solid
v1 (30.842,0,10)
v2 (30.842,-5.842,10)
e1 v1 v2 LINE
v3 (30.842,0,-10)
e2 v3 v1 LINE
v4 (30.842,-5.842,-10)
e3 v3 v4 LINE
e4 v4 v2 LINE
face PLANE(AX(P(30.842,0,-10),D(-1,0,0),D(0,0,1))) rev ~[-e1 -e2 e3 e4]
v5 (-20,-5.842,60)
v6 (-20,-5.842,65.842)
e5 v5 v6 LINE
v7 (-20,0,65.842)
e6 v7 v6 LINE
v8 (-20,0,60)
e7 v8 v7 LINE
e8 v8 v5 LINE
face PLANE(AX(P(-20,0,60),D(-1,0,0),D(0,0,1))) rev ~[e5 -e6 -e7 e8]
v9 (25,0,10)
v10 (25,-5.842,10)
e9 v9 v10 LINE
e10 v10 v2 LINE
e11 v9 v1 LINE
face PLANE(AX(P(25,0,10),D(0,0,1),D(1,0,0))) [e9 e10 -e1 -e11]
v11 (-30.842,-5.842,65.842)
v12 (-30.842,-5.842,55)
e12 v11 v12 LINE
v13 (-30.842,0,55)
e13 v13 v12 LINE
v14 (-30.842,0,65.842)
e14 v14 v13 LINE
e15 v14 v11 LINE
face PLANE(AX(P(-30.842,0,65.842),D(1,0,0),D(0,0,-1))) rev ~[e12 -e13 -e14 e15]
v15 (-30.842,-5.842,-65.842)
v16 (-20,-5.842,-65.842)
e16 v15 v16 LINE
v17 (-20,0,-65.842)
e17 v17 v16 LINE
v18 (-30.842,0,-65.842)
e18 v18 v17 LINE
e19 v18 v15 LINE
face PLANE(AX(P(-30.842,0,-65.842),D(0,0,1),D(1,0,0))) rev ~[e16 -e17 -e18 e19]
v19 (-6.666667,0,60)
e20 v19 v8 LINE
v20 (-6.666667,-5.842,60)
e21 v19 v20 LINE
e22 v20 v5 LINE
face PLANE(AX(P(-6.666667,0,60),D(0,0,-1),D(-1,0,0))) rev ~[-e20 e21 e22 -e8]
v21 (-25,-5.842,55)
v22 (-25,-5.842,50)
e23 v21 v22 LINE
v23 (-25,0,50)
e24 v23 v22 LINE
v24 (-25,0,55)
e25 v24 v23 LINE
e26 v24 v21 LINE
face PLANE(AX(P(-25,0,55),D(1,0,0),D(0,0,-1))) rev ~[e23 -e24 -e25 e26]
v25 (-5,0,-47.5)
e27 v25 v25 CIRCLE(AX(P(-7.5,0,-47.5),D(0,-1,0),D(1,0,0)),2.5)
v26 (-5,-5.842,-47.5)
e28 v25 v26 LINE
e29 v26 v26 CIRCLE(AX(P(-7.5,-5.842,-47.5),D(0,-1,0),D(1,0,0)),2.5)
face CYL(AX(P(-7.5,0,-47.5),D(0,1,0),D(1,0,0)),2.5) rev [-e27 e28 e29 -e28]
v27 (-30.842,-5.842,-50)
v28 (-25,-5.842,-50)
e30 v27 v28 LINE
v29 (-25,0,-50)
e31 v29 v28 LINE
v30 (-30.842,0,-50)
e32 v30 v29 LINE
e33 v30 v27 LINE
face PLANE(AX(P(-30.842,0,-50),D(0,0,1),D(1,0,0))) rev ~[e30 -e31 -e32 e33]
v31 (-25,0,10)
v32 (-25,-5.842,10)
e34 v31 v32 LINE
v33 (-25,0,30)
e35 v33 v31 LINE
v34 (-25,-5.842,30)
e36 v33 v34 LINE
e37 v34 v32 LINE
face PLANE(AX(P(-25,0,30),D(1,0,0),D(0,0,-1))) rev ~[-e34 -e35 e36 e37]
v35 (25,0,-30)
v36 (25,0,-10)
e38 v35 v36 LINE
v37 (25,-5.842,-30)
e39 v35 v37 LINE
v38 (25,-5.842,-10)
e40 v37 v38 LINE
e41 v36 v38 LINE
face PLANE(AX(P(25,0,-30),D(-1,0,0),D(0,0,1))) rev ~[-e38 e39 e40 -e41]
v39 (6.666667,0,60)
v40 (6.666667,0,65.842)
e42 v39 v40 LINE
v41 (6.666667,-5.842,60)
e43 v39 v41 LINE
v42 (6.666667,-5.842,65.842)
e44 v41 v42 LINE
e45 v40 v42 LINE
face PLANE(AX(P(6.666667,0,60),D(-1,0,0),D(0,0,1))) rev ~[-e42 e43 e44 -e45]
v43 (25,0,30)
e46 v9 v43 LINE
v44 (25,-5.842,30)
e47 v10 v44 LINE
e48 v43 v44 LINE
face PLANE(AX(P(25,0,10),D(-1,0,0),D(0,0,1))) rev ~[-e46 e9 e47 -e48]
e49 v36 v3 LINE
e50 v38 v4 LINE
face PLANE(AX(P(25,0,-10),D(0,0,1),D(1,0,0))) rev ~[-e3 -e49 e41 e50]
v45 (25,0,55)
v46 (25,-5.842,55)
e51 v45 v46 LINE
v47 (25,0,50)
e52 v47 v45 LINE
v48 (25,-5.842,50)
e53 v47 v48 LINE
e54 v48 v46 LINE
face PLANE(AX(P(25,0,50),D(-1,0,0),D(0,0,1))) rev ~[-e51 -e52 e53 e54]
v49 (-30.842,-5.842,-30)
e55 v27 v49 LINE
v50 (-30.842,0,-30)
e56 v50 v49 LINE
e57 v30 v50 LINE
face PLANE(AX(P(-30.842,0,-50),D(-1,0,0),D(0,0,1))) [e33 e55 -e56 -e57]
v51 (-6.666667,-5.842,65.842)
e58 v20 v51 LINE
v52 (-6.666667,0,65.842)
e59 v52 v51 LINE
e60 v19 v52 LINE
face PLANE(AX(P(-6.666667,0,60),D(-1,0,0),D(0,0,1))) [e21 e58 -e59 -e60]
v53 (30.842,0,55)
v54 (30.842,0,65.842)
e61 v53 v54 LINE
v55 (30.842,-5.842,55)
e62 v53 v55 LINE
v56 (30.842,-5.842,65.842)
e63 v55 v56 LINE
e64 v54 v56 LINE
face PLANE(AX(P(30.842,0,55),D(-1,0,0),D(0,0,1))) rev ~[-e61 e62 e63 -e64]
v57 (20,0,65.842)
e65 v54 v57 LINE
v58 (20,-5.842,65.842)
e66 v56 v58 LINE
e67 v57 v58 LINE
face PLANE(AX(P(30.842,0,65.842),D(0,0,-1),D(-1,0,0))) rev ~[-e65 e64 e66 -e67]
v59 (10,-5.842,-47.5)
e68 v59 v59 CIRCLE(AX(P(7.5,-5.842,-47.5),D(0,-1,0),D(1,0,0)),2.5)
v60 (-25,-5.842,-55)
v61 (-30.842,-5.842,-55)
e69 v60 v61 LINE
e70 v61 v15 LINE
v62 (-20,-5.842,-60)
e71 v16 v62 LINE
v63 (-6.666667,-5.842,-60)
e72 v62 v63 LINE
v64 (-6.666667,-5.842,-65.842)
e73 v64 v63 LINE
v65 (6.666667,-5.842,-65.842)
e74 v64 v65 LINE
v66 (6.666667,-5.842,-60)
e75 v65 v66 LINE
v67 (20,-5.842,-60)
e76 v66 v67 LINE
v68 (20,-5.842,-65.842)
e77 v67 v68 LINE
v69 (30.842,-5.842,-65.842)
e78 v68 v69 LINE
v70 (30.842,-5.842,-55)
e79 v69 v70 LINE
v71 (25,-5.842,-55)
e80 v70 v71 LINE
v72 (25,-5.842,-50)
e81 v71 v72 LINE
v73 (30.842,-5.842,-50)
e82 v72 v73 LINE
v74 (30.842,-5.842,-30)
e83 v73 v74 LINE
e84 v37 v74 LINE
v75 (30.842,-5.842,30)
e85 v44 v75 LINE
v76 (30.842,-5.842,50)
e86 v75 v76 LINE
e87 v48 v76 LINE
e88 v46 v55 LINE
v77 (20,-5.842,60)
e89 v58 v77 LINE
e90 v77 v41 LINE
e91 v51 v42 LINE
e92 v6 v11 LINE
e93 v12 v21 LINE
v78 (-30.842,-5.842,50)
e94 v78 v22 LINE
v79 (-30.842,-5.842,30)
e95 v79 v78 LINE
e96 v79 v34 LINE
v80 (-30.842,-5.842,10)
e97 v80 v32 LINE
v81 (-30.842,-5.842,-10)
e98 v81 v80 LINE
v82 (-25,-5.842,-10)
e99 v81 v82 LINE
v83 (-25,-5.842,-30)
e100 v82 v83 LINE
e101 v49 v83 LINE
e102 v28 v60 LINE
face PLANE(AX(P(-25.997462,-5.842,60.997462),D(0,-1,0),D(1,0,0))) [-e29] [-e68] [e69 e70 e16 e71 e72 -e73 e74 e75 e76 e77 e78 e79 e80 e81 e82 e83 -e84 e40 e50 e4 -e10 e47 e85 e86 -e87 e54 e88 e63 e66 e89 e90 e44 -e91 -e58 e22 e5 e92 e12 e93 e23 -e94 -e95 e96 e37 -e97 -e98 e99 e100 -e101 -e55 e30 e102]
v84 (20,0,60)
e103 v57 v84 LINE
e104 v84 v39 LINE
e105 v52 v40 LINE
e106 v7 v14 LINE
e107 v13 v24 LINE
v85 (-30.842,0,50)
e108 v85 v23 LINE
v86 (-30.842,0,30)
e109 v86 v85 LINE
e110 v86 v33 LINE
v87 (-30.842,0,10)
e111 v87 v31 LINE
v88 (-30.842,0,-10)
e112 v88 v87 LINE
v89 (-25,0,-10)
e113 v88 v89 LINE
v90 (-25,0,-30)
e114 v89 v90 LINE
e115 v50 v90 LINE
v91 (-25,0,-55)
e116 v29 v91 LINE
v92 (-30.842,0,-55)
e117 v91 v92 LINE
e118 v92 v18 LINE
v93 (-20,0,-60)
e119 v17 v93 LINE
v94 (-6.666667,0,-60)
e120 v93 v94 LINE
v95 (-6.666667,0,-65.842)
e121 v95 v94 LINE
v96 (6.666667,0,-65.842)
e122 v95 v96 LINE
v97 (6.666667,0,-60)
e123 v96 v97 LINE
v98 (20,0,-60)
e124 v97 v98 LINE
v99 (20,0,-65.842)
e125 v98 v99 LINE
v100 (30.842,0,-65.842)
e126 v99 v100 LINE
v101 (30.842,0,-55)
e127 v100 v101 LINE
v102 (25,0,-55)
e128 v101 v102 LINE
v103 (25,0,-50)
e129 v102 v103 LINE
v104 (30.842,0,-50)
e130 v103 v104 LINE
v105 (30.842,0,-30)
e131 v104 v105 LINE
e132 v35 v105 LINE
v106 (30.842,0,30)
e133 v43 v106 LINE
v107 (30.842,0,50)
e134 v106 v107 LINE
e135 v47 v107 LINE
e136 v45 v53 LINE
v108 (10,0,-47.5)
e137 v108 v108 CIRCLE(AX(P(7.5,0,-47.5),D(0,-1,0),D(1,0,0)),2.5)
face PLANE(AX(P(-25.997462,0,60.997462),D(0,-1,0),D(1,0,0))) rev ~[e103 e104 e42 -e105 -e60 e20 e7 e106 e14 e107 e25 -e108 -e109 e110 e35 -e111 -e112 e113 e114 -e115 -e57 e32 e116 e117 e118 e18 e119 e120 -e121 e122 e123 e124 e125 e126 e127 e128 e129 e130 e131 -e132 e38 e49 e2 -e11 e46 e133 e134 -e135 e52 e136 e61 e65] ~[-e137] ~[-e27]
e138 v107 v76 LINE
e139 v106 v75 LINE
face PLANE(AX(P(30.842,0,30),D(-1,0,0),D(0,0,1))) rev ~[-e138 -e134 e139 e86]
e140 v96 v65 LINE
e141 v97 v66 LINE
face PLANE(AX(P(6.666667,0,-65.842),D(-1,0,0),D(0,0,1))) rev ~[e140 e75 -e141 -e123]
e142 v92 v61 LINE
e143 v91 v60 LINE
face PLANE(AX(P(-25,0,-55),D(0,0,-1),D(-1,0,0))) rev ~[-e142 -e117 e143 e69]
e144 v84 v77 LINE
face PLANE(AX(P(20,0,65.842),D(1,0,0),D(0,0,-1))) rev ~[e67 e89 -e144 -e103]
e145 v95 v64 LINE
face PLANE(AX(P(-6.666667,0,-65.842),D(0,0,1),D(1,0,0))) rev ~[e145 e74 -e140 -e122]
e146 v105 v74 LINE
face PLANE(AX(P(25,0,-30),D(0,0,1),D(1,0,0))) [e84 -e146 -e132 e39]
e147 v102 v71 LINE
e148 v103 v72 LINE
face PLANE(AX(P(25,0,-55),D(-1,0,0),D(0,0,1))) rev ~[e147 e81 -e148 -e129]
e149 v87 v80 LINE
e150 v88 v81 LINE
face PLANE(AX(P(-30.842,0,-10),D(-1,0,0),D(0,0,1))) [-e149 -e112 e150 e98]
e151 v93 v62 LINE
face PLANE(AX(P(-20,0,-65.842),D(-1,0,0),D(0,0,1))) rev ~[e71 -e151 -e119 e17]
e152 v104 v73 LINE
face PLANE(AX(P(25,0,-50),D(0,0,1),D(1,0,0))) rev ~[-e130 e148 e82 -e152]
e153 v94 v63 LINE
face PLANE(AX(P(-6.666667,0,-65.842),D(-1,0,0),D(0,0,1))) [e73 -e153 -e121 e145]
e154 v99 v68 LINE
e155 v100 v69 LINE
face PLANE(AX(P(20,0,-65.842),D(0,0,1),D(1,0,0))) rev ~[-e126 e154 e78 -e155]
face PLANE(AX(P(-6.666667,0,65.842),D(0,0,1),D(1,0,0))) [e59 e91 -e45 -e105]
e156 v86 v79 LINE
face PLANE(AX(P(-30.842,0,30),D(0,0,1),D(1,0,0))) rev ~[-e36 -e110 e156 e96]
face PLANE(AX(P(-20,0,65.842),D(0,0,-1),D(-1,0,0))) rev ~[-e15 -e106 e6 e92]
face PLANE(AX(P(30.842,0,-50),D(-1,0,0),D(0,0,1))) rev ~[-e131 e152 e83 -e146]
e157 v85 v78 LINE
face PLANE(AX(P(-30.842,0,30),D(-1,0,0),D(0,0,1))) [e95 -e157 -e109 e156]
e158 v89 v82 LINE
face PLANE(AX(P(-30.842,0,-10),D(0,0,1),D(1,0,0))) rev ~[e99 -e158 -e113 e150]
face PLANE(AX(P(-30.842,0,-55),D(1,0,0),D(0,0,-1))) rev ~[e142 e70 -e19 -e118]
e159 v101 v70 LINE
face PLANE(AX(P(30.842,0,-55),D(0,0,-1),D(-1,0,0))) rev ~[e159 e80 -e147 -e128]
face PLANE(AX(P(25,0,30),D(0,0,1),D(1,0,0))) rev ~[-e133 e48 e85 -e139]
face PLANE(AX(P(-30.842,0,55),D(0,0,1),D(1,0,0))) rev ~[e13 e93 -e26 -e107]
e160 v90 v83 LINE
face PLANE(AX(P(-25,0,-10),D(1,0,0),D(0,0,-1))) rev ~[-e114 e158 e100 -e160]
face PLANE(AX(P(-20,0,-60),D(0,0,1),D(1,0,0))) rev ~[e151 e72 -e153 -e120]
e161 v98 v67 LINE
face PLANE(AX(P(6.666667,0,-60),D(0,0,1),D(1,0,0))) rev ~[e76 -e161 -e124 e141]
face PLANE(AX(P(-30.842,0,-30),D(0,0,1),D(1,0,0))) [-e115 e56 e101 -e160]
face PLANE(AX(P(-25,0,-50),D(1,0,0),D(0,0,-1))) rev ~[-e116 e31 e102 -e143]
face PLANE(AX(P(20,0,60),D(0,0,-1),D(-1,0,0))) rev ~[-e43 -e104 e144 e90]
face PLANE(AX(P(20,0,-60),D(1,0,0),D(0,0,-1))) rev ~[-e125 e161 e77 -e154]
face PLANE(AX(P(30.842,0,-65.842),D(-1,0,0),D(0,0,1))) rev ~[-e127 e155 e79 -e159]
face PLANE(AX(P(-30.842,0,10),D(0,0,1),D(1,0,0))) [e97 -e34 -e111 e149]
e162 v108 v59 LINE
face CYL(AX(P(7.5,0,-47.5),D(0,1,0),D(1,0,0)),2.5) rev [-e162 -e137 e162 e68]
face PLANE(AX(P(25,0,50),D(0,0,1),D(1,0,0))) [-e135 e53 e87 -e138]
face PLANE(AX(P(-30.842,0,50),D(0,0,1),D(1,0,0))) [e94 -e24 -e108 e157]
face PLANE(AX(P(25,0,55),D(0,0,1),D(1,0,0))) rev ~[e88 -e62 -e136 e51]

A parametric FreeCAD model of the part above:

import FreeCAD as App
import Part
import Sketcher
from FreeCAD import Vector
Q = App.Units.Quantity

doc = App.newDocument("Part")
body = doc.addObject("PartDesign::Body", "Body")

# Sketch on XZ plane
sketch1 = doc.addObject("Sketcher::SketchObject", "Sketch")
body.addObject(sketch1)
sketch1.AttachmentSupport = (doc.XZ_Plane, [""])
sketch1.MapMode = "FlatFace"
sketch1.addGeometry([
    Part.LineSegment(Vector(-20, 60, 0), Vector(-20, 65.8, 0)),  # 0
    Part.LineSegment(Vector(-20, 65.8, 0), Vector(-30.8, 65.8, 0)),  # 1
    Part.LineSegment(Vector(-30.8, 65.8, 0), Vector(-30.8, 55, 0)),  # 2
    Part.LineSegment(Vector(-30.8, 55, 0), Vector(-25, 55, 0)),  # 3
    Part.LineSegment(Vector(-25, 55, 0), Vector(-25, 50, 0)),  # 4
    Part.LineSegment(Vector(-25, 50, 0), Vector(-30.8, 50, 0)),  # 5
    Part.LineSegment(Vector(-30.8, 50, 0), Vector(-30.8, 30, 0)),  # 6
    Part.LineSegment(Vector(-30.8, 30, 0), Vector(-25, 30, 0)),  # 7
    Part.LineSegment(Vector(-25, 30, 0), Vector(-25, 10, 0)),  # 8
    Part.LineSegment(Vector(-25, 10, 0), Vector(-30.8, 10, 0)),  # 9
    Part.LineSegment(Vector(-30.8, 10, 0), Vector(-30.8, -10, 0)),  # 10
    Part.LineSegment(Vector(-30.8, -10, 0), Vector(-25, -10, 0)),  # 11
    Part.LineSegment(Vector(-25, -10, 0), Vector(-25, -30, 0)),  # 12
    Part.LineSegment(Vector(-25, -30, 0), Vector(-30.8, -30, 0)),  # 13
    Part.LineSegment(Vector(-30.8, -30, 0), Vector(-30.8, -50, 0)),  # 14
    Part.LineSegment(Vector(-30.8, -50, 0), Vector(-25, -50, 0)),  # 15
    Part.LineSegment(Vector(-25, -50, 0), Vector(-25, -55, 0)),  # 16
    Part.LineSegment(Vector(-25, -55, 0), Vector(-30.8, -55, 0)),  # 17
    Part.LineSegment(Vector(-30.8, -55, 0), Vector(-30.8, -65.8, 0)),  # 18
    Part.LineSegment(Vector(-30.8, -65.8, 0), Vector(-20, -65.8, 0)),  # 19
    Part.LineSegment(Vector(-20, -65.8, 0), Vector(-20, -60, 0)),  # 20
    Part.LineSegment(Vector(-20, -60, 0), Vector(-6.7, -60, 0)),  # 21
    Part.LineSegment(Vector(-6.7, -60, 0), Vector(-6.7, -65.8, 0)),  # 22
    Part.LineSegment(Vector(-6.7, -65.8, 0), Vector(6.7, -65.8, 0)),  # 23
    Part.LineSegment(Vector(6.7, -65.8, 0), Vector(6.7, -60, 0)),  # 24
    Part.LineSegment(Vector(6.7, -60, 0), Vector(20, -60, 0)),  # 25
    Part.LineSegment(Vector(20, -60, 0), Vector(20, -65.8, 0)),  # 26
    Part.LineSegment(Vector(20, -65.8, 0), Vector(30.8, -65.8, 0)),  # 27
    Part.LineSegment(Vector(30.8, -65.8, 0), Vector(30.8, -55, 0)),  # 28
    Part.LineSegment(Vector(30.8, -55, 0), Vector(25, -55, 0)),  # 29
    Part.LineSegment(Vector(25, -55, 0), Vector(25, -50, 0)),  # 30
    Part.LineSegment(Vector(25, -50, 0), Vector(30.8, -50, 0)),  # 31
    Part.LineSegment(Vector(30.8, -50, 0), Vector(30.8, -30, 0)),  # 32
    Part.LineSegment(Vector(30.8, -30, 0), Vector(25, -30, 0)),  # 33
    Part.LineSegment(Vector(25, -30, 0), Vector(25, -10, 0)),  # 34
    Part.LineSegment(Vector(25, -10, 0), Vector(30.8, -10, 0)),  # 35
    Part.LineSegment(Vector(30.8, -10, 0), Vector(30.8, 10, 0)),  # 36
    Part.LineSegment(Vector(30.8, 10, 0), Vector(25, 10, 0)),  # 37
    Part.LineSegment(Vector(25, 10, 0), Vector(25, 30, 0)),  # 38
    Part.LineSegment(Vector(25, 30, 0), Vector(30.8, 30, 0)),  # 39
    Part.LineSegment(Vector(30.8, 30, 0), Vector(30.8, 50, 0)),  # 40
    Part.LineSegment(Vector(30.8, 50, 0), Vector(25, 50, 0)),  # 41
    Part.LineSegment(Vector(25, 50, 0), Vector(25, 55, 0)),  # 42
    Part.LineSegment(Vector(25, 55, 0), Vector(30.8, 55, 0)),  # 43
    Part.LineSegment(Vector(30.8, 55, 0), Vector(30.8, 65.8, 0)),  # 44
    Part.LineSegment(Vector(30.8, 65.8, 0), Vector(20, 65.8, 0)),  # 45
    Part.LineSegment(Vector(20, 65.8, 0), Vector(20, 60, 0)),  # 46
    Part.LineSegment(Vector(20, 60, 0), Vector(6.7, 60, 0)),  # 47
    Part.LineSegment(Vector(6.7, 60, 0), Vector(6.7, 65.8, 0)),  # 48
    Part.LineSegment(Vector(6.7, 65.8, 0), Vector(-6.7, 65.8, 0)),  # 49
    Part.LineSegment(Vector(-6.7, 65.8, 0), Vector(-6.7, 60, 0)),  # 50
    Part.LineSegment(Vector(-6.7, 60, 0), Vector(-20, 60, 0)),  # 51
    Part.Circle(Vector(-7.5, -47.5, 0), Vector(0, 0, 1), 2.5),  # 52
    Part.Circle(Vector(7.5, -47.5, 0), Vector(0, 0, 1), 2.5),  # 53
], False)
sketch1.addConstraint([
    Sketcher.Constraint("Coincident", 0, 2, 1, 1),
    Sketcher.Constraint("Coincident", 1, 2, 2, 1),
    Sketcher.Constraint("Coincident", 2, 2, 3, 1),
    Sketcher.Constraint("Coincident", 3, 2, 4, 1),
    Sketcher.Constraint("Coincident", 4, 2, 5, 1),
    Sketcher.Constraint("Coincident", 5, 2, 6, 1),
    Sketcher.Constraint("Coincident", 6, 2, 7, 1),
    Sketcher.Constraint("Coincident", 7, 2, 8, 1),
    Sketcher.Constraint("Coincident", 8, 2, 9, 1),
    Sketcher.Constraint("Coincident", 9, 2, 10, 1),
    Sketcher.Constraint("Coincident", 10, 2, 11, 1),
    Sketcher.Constraint("Coincident", 11, 2, 12, 1),
    Sketcher.Constraint("Coincident", 12, 2, 13, 1),
    Sketcher.Constraint("Coincident", 13, 2, 14, 1),
    Sketcher.Constraint("Coincident", 14, 2, 15, 1),
    Sketcher.Constraint("Coincident", 15, 2, 16, 1),
    Sketcher.Constraint("Coincident", 16, 2, 17, 1),
    Sketcher.Constraint("Coincident", 17, 2, 18, 1),
    Sketcher.Constraint("Coincident", 18, 2, 19, 1),
    Sketcher.Constraint("Coincident", 19, 2, 20, 1),
    Sketcher.Constraint("Coincident", 20, 2, 21, 1),
    Sketcher.Constraint("Coincident", 21, 2, 22, 1),
    Sketcher.Constraint("Coincident", 22, 2, 23, 1),
    Sketcher.Constraint("Coincident", 23, 2, 24, 1),
    Sketcher.Constraint("Coincident", 24, 2, 25, 1),
    Sketcher.Constraint("Coincident", 25, 2, 26, 1),
    Sketcher.Constraint("Coincident", 26, 2, 27, 1),
    Sketcher.Constraint("Coincident", 27, 2, 28, 1),
    Sketcher.Constraint("Coincident", 28, 2, 29, 1),
    Sketcher.Constraint("Coincident", 29, 2, 30, 1),
    Sketcher.Constraint("Coincident", 30, 2, 31, 1),
    Sketcher.Constraint("Coincident", 31, 2, 32, 1),
    Sketcher.Constraint("Coincident", 32, 2, 33, 1),
    Sketcher.Constraint("Coincident", 33, 2, 34, 1),
    Sketcher.Constraint("Coincident", 34, 2, 35, 1),
    Sketcher.Constraint("Coincident", 35, 2, 36, 1),
    Sketcher.Constraint("Coincident", 36, 2, 37, 1),
    Sketcher.Constraint("Coincident", 37, 2, 38, 1),
    Sketcher.Constraint("Coincident", 38, 2, 39, 1),
    Sketcher.Constraint("Coincident", 39, 2, 40, 1),
    Sketcher.Constraint("Coincident", 40, 2, 41, 1),
    Sketcher.Constraint("Coincident", 41, 2, 42, 1),
    Sketcher.Constraint("Coincident", 42, 2, 43, 1),
    Sketcher.Constraint("Coincident", 43, 2, 44, 1),
    Sketcher.Constraint("Coincident", 44, 2, 45, 1),
    Sketcher.Constraint("Coincident", 45, 2, 46, 1),
    Sketcher.Constraint("Coincident", 46, 2, 47, 1),
    Sketcher.Constraint("Coincident", 47, 2, 48, 1),
    Sketcher.Constraint("Coincident", 48, 2, 49, 1),
    Sketcher.Constraint("Coincident", 49, 2, 50, 1),
    Sketcher.Constraint("Coincident", 50, 2, 51, 1),
    Sketcher.Constraint("Coincident", 51, 2, 0, 1),
    Sketcher.Constraint("Vertical", 0),
    Sketcher.Constraint("Horizontal", 1),
    Sketcher.Constraint("Vertical", 2),
    Sketcher.Constraint("Horizontal", 3),
    Sketcher.Constraint("Vertical", 4),
    Sketcher.Constraint("Horizontal", 5),
    Sketcher.Constraint("Vertical", 6),
    Sketcher.Constraint("Horizontal", 7),
    Sketcher.Constraint("Vertical", 8),
    Sketcher.Constraint("Horizontal", 9),
    Sketcher.Constraint("Vertical", 10),
    Sketcher.Constraint("Horizontal", 11),
    Sketcher.Constraint("Vertical", 12),
    Sketcher.Constraint("Horizontal", 13),
    Sketcher.Constraint("Vertical", 14),
    Sketcher.Constraint("Horizontal", 15),
    Sketcher.Constraint("Vertical", 16),
    Sketcher.Constraint("Horizontal", 17),
    Sketcher.Constraint("Vertical", 18),
    Sketcher.Constraint("Horizontal", 19),
    Sketcher.Constraint("Vertical", 20),
    Sketcher.Constraint("Horizontal", 21),
    Sketcher.Constraint("Vertical", 22),
    Sketcher.Constraint("Horizontal", 23),
    Sketcher.Constraint("Vertical", 24),
    Sketcher.Constraint("Horizontal", 25),
    Sketcher.Constraint("Vertical", 26),
    Sketcher.Constraint("Horizontal", 27),
    Sketcher.Constraint("Vertical", 28),
    Sketcher.Constraint("Horizontal", 29),
    Sketcher.Constraint("Vertical", 30),
    Sketcher.Constraint("Horizontal", 31),
    Sketcher.Constraint("Vertical", 32),
    Sketcher.Constraint("Horizontal", 33),
    Sketcher.Constraint("Vertical", 34),
    Sketcher.Constraint("Horizontal", 35),
    Sketcher.Constraint("Vertical", 36),
    Sketcher.Constraint("Horizontal", 37),
    Sketcher.Constraint("Vertical", 38),
    Sketcher.Constraint("Horizontal", 39),
    Sketcher.Constraint("Vertical", 40),
    Sketcher.Constraint("Horizontal", 41),
    Sketcher.Constraint("Vertical", 42),
    Sketcher.Constraint("Horizontal", 43),
    Sketcher.Constraint("Vertical", 44),
    Sketcher.Constraint("Horizontal", 45),
    Sketcher.Constraint("Vertical", 46),
    Sketcher.Constraint("Horizontal", 47),
    Sketcher.Constraint("Vertical", 48),
    Sketcher.Constraint("Horizontal", 49),
    Sketcher.Constraint("Vertical", 50),
    Sketcher.Constraint("Horizontal", 51),
    Sketcher.Constraint("Equal", 52, 53),
    Sketcher.Constraint("Symmetric", 0, 2, 26, 2, -1, 1),
    Sketcher.Constraint("Symmetric", 2, 2, 28, 2, -1, 1),
    Sketcher.Constraint("Symmetric", 4, 2, 30, 2, -1, 1),
    Sketcher.Constraint("Symmetric", 6, 2, 32, 2, -1, 1),
    Sketcher.Constraint("Symmetric", 8, 2, 34, 2, -1, 1),
    Sketcher.Constraint("Symmetric", 10, 2, 36, 2, -1, 1),
    Sketcher.Constraint("Symmetric", 12, 2, 38, 2, -1, 1),
    Sketcher.Constraint("Symmetric", 14, 2, 40, 2, -1, 1),
    Sketcher.Constraint("Symmetric", 16, 2, 42, 2, -1, 1),
    Sketcher.Constraint("Symmetric", 18, 2, 44, 2, -1, 1),
    Sketcher.Constraint("Symmetric", 20, 2, 46, 2, -1, 1),
    Sketcher.Constraint("Symmetric", 22, 2, 48, 2, -1, 1),
    Sketcher.Constraint("Symmetric", 24, 2, 50, 2, -1, 1),
    Sketcher.Constraint("Symmetric", 52, 3, 53, 3, -2),
    Sketcher.Constraint("Symmetric", 21, 2, 24, 2, -2),
    Sketcher.Constraint("Symmetric", 19, 2, 26, 2, -2),
    Sketcher.Constraint("Symmetric", 17, 2, 28, 2, -2),
    Sketcher.Constraint("Symmetric", 15, 2, 30, 2, -2),
    Sketcher.Constraint("Symmetric", 13, 2, 32, 2, -2),
    Sketcher.Constraint("Symmetric", 11, 2, 34, 2, -2),
    Sketcher.Constraint("Horizontal", 19, 2, 22, 2),
    Sketcher.Constraint("Vertical", 2, 2, 5, 2),
    Sketcher.Constraint("Vertical", 4, 2, 7, 2),
    Sketcher.Constraint("Vertical", 6, 2, 9, 2),
    Sketcher.Constraint("Equal", 21, 23),
    Sketcher.Constraint("Equal", 43, 0),
    Sketcher.Constraint("Equal", 45, 2),
    Sketcher.Constraint("Equal", 6, 8),
    Sketcher.Constraint("Equal", 8, 10),
    Sketcher.Constraint("Diameter", 52, Q("5 mm")),
    Sketcher.Constraint("DistanceY", 4, 2, 4, 1, Q("5 mm")),
    Sketcher.Constraint("DistanceY", 6, 2, 6, 1, Q("20 mm")),
    Sketcher.Constraint("DistanceX", 0, 2, -1, 1, Q("20 mm")),
    Sketcher.Constraint("DistanceX", 3, 2, -1, 1, Q("25 mm")),
    Sketcher.Constraint("DistanceX", 52, 3, 53, 3, Q("15 mm")),
    Sketcher.Constraint("DistanceY", 52, 3, -1, 1, Q("47.5 mm")),
    Sketcher.Constraint("DistanceX", 1, 2, 1, 1, Q("10.842 mm")),
])
pad1 = doc.addObject("PartDesign::Pad", "Pad")
body.addObject(pad1)
pad1.Profile = sketch1
pad1.Length = 5.842

doc.recompute()
